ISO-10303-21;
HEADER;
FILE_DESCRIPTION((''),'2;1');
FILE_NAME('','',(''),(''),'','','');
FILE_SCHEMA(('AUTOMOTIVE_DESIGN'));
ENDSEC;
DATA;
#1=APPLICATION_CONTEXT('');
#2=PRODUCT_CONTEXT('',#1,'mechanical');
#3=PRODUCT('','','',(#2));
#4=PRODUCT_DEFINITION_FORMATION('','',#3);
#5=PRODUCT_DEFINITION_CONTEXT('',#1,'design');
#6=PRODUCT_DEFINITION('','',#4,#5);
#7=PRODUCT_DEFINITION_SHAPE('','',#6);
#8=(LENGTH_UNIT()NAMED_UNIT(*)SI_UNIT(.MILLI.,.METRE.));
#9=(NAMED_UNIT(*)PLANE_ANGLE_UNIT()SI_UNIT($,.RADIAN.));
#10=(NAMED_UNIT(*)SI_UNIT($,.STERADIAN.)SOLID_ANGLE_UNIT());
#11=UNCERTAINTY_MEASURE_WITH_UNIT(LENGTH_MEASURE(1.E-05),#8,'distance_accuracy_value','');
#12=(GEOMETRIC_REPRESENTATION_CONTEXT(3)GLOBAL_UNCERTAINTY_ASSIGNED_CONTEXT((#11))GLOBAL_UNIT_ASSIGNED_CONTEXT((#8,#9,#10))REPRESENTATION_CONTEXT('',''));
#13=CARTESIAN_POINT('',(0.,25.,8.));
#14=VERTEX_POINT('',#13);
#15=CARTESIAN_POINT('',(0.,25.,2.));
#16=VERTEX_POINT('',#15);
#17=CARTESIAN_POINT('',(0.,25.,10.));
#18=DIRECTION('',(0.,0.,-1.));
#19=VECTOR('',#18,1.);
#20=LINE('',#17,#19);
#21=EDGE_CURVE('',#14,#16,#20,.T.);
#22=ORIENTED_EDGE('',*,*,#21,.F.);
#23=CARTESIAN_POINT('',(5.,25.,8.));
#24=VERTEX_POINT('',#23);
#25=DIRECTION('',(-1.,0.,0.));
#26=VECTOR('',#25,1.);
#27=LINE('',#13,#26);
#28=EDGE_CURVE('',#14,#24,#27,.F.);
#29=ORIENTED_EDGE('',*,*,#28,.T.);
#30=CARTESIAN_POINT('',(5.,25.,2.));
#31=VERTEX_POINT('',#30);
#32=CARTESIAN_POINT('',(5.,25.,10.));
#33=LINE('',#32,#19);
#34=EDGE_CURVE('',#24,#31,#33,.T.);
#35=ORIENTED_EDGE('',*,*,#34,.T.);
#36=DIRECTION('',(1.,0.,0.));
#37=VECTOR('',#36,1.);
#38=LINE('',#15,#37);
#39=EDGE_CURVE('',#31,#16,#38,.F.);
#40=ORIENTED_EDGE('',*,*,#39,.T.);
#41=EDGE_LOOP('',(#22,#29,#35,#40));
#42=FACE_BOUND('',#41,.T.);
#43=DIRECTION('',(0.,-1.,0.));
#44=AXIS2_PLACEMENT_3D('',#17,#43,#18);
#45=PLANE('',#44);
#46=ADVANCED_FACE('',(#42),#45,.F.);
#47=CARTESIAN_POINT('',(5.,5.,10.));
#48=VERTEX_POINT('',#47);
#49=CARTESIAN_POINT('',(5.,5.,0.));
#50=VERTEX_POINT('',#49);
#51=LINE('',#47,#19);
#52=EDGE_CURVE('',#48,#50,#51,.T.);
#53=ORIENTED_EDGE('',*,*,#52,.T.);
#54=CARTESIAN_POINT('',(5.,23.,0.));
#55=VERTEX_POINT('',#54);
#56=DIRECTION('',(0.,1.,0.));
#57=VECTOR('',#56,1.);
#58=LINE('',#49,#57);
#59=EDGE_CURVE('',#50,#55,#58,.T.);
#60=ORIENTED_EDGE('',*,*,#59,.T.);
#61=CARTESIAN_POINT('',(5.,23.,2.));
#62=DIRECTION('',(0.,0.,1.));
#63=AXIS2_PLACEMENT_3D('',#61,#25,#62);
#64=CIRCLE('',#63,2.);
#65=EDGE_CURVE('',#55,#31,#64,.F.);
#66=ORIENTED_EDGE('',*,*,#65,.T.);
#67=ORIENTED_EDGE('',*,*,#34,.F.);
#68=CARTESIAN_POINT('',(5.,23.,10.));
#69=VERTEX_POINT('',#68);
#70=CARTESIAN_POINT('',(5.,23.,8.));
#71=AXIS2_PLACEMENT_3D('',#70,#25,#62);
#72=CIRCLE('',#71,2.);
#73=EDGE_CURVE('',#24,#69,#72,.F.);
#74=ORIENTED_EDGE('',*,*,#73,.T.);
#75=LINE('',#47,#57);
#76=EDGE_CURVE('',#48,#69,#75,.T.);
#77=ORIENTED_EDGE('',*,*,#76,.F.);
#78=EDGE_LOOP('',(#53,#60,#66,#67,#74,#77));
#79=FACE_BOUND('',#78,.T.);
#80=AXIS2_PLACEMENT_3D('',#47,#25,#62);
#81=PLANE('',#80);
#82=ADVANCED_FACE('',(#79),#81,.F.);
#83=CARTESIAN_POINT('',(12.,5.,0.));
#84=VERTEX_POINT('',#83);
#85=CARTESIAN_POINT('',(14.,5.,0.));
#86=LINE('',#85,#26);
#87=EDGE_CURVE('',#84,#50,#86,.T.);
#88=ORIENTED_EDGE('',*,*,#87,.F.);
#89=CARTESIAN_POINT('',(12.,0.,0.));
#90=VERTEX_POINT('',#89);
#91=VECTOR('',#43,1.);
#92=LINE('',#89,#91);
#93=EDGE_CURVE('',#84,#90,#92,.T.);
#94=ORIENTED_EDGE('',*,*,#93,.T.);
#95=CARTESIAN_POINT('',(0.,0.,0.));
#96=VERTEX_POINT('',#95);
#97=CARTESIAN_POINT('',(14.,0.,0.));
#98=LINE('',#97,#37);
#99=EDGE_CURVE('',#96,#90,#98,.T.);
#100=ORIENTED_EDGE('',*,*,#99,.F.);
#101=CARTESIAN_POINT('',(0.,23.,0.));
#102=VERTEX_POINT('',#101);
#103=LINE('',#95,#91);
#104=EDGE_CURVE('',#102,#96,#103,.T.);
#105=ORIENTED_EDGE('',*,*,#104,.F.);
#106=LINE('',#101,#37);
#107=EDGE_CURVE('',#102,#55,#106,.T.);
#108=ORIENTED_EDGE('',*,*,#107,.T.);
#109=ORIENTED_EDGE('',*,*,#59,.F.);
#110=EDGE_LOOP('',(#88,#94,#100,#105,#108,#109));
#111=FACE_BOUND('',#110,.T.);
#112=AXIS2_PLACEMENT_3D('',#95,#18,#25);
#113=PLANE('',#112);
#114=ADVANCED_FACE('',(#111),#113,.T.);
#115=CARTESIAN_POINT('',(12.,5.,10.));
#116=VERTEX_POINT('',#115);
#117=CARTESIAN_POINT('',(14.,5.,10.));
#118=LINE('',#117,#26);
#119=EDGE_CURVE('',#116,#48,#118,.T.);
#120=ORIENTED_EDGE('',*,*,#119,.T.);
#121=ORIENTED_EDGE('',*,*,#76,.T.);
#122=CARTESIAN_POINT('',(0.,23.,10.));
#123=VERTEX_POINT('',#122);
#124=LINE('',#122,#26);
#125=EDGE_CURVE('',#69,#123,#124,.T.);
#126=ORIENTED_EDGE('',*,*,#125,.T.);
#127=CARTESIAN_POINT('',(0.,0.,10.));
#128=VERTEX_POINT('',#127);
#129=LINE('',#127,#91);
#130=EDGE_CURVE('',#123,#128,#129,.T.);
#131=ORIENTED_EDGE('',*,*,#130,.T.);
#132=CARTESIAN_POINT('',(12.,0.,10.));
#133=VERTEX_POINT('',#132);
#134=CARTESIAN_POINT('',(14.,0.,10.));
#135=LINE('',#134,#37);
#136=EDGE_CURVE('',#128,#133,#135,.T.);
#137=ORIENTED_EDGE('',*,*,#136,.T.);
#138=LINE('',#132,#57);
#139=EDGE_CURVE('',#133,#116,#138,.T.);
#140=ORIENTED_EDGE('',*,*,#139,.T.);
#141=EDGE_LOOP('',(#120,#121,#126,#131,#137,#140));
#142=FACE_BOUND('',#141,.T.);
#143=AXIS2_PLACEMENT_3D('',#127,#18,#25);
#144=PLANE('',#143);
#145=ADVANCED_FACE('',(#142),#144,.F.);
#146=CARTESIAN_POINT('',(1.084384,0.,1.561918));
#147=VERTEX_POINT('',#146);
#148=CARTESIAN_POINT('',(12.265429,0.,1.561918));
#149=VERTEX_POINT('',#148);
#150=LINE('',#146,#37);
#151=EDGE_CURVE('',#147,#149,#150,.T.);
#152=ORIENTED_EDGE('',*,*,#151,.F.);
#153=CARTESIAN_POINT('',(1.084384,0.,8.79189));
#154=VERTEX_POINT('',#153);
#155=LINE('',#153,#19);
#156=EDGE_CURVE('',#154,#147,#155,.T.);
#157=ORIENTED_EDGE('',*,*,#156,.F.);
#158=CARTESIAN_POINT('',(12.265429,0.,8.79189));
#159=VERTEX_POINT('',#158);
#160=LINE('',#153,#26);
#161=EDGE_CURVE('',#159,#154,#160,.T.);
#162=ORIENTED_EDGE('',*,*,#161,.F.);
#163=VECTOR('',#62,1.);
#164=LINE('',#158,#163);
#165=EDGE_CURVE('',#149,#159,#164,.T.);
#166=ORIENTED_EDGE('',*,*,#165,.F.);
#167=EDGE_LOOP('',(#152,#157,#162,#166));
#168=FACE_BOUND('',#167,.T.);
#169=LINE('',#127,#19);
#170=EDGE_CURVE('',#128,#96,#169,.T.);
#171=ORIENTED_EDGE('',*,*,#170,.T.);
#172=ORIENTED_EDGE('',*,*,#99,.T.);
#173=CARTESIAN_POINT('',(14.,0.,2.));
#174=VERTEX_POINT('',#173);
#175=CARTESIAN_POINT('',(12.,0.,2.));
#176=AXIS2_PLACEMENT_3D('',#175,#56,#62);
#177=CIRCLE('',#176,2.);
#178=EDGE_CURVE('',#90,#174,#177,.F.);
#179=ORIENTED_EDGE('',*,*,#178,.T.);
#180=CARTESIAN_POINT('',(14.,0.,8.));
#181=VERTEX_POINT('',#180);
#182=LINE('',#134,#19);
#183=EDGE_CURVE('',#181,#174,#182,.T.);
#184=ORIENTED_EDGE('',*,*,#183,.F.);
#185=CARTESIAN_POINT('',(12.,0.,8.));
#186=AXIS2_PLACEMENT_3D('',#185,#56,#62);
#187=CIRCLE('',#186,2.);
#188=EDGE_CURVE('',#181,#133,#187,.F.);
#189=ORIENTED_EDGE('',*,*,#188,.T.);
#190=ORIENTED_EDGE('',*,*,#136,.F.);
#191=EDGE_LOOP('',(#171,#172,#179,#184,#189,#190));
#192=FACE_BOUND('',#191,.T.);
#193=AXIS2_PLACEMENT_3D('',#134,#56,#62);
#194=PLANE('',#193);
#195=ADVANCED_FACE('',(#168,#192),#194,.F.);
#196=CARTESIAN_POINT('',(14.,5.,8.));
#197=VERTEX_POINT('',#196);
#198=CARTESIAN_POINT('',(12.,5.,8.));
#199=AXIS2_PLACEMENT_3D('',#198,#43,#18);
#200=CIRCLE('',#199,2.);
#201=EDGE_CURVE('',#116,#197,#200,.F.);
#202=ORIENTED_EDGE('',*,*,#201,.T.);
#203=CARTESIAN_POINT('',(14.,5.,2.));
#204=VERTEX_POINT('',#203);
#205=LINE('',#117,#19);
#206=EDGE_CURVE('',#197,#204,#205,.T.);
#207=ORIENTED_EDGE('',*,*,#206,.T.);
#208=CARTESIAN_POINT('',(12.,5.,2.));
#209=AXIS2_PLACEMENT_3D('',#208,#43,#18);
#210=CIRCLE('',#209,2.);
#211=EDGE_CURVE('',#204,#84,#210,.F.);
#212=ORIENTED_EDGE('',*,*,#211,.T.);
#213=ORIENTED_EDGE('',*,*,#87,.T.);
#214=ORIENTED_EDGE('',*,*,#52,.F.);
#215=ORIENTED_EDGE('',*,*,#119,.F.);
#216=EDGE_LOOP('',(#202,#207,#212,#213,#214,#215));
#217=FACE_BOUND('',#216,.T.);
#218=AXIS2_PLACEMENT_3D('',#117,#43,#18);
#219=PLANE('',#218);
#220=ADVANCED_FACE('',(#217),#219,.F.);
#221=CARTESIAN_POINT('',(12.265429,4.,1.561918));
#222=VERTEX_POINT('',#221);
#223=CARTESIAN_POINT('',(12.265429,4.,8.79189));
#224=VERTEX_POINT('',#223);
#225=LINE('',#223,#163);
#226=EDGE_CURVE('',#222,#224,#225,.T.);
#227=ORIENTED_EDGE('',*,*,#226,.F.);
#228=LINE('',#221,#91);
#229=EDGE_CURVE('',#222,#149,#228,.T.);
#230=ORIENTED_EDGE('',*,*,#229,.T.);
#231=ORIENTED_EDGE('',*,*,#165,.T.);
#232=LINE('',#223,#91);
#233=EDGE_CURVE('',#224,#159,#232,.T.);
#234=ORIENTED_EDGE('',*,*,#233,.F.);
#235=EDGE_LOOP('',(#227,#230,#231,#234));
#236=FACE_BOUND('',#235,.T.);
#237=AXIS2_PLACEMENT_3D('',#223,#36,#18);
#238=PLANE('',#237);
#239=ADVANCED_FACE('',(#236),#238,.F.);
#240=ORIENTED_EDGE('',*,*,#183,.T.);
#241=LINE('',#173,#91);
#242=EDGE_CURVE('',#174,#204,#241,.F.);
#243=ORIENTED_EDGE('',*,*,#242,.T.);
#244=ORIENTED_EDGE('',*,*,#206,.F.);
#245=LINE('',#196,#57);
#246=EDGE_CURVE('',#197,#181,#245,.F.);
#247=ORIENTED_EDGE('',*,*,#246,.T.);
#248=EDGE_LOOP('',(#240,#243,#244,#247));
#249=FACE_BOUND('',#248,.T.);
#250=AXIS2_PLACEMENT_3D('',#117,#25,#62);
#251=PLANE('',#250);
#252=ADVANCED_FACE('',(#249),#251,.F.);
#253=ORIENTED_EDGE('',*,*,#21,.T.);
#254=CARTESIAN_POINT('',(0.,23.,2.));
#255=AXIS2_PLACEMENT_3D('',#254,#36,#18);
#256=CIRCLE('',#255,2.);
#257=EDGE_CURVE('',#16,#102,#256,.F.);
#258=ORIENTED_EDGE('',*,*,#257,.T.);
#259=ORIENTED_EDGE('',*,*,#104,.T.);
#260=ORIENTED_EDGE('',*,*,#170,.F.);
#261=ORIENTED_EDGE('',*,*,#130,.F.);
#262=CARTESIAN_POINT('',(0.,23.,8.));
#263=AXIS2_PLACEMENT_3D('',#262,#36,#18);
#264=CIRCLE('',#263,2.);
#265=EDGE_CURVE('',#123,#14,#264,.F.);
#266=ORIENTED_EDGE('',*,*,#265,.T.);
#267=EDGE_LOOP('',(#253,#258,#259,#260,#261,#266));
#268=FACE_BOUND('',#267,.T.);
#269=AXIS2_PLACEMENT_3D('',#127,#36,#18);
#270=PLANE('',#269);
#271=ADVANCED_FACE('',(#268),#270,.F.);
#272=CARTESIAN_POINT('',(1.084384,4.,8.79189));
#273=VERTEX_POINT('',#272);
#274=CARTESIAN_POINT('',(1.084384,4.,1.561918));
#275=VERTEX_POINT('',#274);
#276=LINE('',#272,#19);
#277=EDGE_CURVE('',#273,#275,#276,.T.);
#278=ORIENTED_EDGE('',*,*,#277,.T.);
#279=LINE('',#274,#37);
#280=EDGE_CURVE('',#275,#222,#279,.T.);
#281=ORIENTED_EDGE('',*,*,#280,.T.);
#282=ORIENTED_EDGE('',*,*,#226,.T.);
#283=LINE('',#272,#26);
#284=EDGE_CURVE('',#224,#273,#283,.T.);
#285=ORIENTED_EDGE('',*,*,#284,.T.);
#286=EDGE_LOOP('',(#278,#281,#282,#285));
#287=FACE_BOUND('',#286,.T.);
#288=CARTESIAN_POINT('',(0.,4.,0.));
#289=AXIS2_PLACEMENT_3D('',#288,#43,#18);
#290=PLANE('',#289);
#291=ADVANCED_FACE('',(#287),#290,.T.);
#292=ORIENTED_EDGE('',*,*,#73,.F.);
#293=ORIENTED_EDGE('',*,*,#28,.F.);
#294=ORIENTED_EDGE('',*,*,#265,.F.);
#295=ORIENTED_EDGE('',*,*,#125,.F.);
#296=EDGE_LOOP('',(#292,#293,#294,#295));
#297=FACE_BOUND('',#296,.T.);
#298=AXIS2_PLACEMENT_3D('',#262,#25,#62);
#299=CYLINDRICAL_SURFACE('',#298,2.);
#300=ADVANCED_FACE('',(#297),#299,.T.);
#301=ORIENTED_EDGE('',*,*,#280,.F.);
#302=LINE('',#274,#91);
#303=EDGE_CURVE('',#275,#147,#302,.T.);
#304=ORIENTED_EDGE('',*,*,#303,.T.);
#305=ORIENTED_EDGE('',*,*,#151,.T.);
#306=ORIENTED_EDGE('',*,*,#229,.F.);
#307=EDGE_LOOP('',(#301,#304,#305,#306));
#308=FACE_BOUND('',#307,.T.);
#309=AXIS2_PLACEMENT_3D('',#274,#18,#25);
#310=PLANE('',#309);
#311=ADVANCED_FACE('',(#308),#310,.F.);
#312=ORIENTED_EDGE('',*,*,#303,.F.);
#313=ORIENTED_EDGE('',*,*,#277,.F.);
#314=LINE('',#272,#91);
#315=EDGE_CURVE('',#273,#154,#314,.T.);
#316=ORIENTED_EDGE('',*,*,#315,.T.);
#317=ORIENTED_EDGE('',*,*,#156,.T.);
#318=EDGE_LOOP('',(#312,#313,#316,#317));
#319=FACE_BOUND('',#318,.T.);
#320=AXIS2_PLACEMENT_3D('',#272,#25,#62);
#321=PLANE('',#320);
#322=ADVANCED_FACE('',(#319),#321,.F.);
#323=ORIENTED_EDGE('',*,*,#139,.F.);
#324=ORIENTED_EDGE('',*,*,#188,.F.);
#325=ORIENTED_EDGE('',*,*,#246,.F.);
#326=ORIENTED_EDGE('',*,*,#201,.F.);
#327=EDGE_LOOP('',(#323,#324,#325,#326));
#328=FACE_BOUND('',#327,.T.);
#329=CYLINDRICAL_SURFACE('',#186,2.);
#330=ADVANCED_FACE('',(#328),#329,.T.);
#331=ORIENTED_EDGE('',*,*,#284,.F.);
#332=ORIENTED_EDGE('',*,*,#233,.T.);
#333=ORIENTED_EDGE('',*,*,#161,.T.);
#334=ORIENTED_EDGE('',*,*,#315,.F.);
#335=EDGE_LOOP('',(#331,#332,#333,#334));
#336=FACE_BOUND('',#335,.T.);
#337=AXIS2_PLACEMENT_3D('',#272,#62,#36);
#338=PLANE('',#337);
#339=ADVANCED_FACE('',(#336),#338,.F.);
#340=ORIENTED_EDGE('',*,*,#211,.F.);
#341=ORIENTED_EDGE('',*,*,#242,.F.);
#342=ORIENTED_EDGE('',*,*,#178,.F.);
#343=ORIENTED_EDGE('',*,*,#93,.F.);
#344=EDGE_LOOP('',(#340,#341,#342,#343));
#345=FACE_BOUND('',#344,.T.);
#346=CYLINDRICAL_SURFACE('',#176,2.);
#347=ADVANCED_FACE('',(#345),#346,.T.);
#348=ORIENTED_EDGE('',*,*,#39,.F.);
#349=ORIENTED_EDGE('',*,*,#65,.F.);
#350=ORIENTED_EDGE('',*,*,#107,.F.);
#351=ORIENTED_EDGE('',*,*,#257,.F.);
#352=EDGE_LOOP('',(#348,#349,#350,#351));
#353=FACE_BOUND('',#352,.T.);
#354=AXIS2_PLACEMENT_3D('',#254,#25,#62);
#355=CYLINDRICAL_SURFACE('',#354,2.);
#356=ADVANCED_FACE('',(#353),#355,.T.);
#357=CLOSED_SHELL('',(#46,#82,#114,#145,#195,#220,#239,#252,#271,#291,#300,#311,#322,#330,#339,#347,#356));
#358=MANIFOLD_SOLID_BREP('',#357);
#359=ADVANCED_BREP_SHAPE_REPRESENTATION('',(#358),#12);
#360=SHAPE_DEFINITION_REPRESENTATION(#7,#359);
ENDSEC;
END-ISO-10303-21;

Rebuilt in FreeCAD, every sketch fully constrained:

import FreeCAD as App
import Part
import Sketcher


def edges_at(feature, points):
    """Names of the edges that pass closest to the given points."""
    edges = feature.Shape.Edges
    near = lambda p: min(range(len(edges)), key=lambda i: edges[i].distToShape(Part.Vertex(*p))[0])
    return sorted({f"Edge{near(p) + 1}" for p in points})


def add_polygon(sketch, points):
    """Adds a closed chain of lines whose ends are joined by coincident constraints."""
    first, n = sketch.GeometryCount, len(points)
    for a, b in zip(points, points[1:] + points[:1]):
        sketch.addGeometry(Part.LineSegment(App.Vector(*a, 0), App.Vector(*b, 0)), False)
    for i in range(n):
        sketch.addConstraint(Sketcher.Constraint("Coincident", first + i, 2, first + (i + 1) % n, 1))

doc = App.newDocument("Part")
body = doc.addObject("PartDesign::Body", "Body")

# Sketch on XY plane
sketch1 = doc.addObject("Sketcher::SketchObject", "Sketch")
body.addObject(sketch1)
sketch1.AttachmentSupport = (doc.XY_Plane, [""])
sketch1.MapMode = "FlatFace"
add_polygon(sketch1, [(0, 0), (14, 0), (14, 5), (5, 5), (5, 25), (0, 25)])  # lines 0-5
sketch1.addConstraint([
    Sketcher.Constraint("Horizontal", 0),
    Sketcher.Constraint("Vertical", 1),
    Sketcher.Constraint("Horizontal", 2),
    Sketcher.Constraint("Vertical", 3),
    Sketcher.Constraint("Horizontal", 4),
    Sketcher.Constraint("Vertical", 5),
    Sketcher.Constraint("Coincident", 5, 2, -1, 1),
    Sketcher.Constraint("Equal", 4, 1),
    Sketcher.Constraint("DistanceX", 0, 1, 0, 2, 14.0),
    Sketcher.Constraint("DistanceX", 2, 2, 2, 1, 9.0),
    Sketcher.Constraint("DistanceY", 3, 1, 3, 2, 20.0),
])
pad1 = doc.addObject("PartDesign::Pad", "Pad")
body.addObject(pad1)
pad1.Profile = sketch1
pad1.Length = 10
doc.recompute()

fillet = doc.addObject("PartDesign::Fillet", "Fillet")
body.addObject(fillet)
fillet.Base = (pad1, edges_at(pad1, [(2.5, 25, 10)]))
fillet.Radius = 2
doc.recompute()

fillet2 = doc.addObject("PartDesign::Fillet", "Fillet001")
body.addObject(fillet2)
fillet2.Base = (fillet, edges_at(fillet, [(2.5, 25, 0)]))
fillet2.Radius = 2
doc.recompute()

fillet3 = doc.addObject("PartDesign::Fillet", "Fillet002")
body.addObject(fillet3)
fillet3.Base = (fillet2, edges_at(fillet2, [(14, 2.5, 10)]))
fillet3.Radius = 2
doc.recompute()

fillet4 = doc.addObject("PartDesign::Fillet", "Fillet003")
body.addObject(fillet4)
fillet4.Base = (fillet3, edges_at(fillet3, [(14, 2.5, 0)]))
fillet4.Radius = 2

# Sketch on XZ plane
sketch2 = doc.addObject("Sketcher::SketchObject", "Sketch001")
body.addObject(sketch2)
sketch2.AttachmentSupport = (doc.XZ_Plane, [""])
sketch2.MapMode = "FlatFace"
add_polygon(sketch2, [(1, 9), (1, 2), (12, 2), (12, 9)])  # lines 0-3
sketch2.addConstraint([
    Sketcher.Constraint("Vertical", 0),
    Sketcher.Constraint("Horizontal", 1),
    Sketcher.Constraint("Vertical", 2),
    Sketcher.Constraint("Horizontal", 3),
    Sketcher.Constraint("DistanceY", 0, 2, 0, 1, 7.229972),
    Sketcher.Constraint("DistanceX", 1, 1, 1, 2, 11.181045),
    Sketcher.Constraint("DistanceY", -1, 1, 0, 2, 1.561918),
    Sketcher.Constraint("DistanceX", -1, 1, 1, 2, 12.265429),
])
pocket1 = doc.addObject("PartDesign::Pocket", "Pocket")
body.addObject(pocket1)
pocket1.Profile = sketch2
pocket1.Length = 4

doc.recompute()
